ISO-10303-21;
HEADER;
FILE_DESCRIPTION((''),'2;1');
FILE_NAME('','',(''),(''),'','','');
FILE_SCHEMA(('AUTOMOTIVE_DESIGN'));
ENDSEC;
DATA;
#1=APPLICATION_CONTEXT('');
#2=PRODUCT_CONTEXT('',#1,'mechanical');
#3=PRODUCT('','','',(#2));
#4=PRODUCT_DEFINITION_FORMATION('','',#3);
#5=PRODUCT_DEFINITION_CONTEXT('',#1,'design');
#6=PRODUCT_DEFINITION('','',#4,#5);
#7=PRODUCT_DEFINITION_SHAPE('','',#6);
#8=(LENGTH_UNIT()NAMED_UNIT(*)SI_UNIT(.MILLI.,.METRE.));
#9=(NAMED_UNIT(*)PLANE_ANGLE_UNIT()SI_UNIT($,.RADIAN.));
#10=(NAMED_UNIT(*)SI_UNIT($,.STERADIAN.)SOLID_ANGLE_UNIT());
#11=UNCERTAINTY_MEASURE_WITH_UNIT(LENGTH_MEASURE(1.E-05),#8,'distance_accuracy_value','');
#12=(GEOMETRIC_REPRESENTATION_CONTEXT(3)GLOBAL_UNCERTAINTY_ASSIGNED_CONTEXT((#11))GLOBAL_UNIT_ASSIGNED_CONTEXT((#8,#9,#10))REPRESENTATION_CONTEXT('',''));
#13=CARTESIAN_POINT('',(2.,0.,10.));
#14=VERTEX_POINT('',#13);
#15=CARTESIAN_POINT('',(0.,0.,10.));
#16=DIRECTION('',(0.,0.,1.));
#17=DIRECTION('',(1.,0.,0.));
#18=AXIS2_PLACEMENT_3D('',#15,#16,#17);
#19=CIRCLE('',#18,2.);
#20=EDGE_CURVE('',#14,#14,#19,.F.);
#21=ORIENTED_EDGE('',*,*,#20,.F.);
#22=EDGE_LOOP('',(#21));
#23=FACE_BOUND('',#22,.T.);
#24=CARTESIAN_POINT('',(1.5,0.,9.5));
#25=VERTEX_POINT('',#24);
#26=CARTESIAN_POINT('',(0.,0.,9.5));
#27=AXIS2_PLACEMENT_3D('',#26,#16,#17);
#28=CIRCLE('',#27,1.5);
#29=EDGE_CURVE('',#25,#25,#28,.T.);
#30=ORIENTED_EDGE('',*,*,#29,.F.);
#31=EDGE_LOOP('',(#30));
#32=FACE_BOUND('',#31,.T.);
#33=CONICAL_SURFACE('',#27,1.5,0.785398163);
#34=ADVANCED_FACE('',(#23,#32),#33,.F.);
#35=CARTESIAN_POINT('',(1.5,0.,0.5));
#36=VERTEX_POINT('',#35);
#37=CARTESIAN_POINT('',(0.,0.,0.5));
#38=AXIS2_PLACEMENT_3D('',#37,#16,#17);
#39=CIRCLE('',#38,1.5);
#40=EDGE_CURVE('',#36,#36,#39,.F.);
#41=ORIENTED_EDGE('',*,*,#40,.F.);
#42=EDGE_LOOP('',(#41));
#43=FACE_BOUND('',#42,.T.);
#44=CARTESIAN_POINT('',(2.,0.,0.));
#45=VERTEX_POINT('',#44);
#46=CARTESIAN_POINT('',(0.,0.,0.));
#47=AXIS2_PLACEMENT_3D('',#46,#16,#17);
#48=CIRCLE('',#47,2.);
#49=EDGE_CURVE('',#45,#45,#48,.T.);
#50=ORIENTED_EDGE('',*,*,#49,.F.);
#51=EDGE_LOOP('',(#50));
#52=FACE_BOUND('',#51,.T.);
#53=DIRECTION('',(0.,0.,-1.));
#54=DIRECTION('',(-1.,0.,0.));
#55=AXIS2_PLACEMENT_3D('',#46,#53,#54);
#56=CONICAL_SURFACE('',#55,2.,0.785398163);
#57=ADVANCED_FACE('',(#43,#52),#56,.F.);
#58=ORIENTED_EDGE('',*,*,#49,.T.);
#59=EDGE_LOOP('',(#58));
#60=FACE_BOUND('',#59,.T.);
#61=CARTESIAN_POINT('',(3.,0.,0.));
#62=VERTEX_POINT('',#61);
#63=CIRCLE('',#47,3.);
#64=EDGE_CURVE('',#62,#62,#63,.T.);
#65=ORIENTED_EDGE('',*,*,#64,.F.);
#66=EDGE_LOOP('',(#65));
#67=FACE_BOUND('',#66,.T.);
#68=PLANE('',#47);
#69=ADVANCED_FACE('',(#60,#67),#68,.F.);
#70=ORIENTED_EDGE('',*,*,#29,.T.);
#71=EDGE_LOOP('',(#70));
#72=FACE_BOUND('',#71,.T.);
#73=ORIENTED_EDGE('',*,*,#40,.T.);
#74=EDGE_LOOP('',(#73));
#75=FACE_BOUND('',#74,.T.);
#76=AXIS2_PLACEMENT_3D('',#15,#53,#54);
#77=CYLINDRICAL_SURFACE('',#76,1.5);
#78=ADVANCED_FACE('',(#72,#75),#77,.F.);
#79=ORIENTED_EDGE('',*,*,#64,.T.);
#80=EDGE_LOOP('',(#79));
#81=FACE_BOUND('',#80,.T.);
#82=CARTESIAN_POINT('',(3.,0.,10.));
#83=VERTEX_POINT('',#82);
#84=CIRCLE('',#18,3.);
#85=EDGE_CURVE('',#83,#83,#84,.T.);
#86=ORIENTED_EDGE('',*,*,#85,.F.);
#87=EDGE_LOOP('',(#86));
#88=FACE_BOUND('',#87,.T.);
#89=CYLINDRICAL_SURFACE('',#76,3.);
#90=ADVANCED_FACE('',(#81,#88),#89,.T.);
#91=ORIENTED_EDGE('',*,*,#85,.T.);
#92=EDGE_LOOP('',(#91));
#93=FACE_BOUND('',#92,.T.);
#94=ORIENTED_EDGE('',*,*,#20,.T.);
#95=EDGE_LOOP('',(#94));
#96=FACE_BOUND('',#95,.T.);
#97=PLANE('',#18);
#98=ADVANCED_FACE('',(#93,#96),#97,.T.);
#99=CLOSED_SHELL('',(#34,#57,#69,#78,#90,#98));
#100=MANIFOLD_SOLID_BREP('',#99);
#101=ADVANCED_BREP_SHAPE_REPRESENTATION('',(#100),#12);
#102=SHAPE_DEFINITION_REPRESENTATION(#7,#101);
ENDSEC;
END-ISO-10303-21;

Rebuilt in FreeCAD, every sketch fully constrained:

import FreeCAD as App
import Part
import Sketcher

V = App.Vector


def edges_at(feature, points):
    """Names of the edges that pass closest to the given points."""
    edges = feature.Shape.Edges
    near = lambda p: min(range(len(edges)), key=lambda i: edges[i].distToShape(Part.Vertex(*p))[0])
    return sorted({f"Edge{near(p) + 1}" for p in points})

doc = App.newDocument("Part")
params = doc.addObject("Spreadsheet::Sheet", "Params")
for row, (alias, value) in enumerate([
    ("sketch1_diameter", "6 mm"),
    ("sketch1_diameter2", "3 mm"),
    ("pad1_length", "10 mm"),
    ("chamfer_size", "0.5 mm"),
    ("chamfer2_size", "0.5 mm"),
], start=1):
    params.set(f"A{row}", alias)
    params.set(f"B{row}", "=" + value)
    params.setAlias(f"B{row}", alias)

body = doc.addObject("PartDesign::Body", "Body")

sketch1 = body.newObject("Sketcher::SketchObject", "Sketch")
sketch1.AttachmentSupport = (doc.getObject("XY_Plane"), [""])
sketch1.MapMode = "FlatFace"
sketch1.addGeometry([
    Part.Circle(V(0, 0, 0), V(0, 0, 1), 3),
    Part.Circle(V(0, 0, 0), V(0, 0, 1), 1.5),
], False)
sketch1.addConstraint([
    Sketcher.Constraint("Coincident", 0, 3, -1, 1),
    Sketcher.Constraint("Coincident", 1, 3, -1, 1),
    Sketcher.Constraint("Diameter", 0, 6.0),
    Sketcher.Constraint("Diameter", 1, 3.0),
])
sketch1.setExpression("Constraints[2]", "Params.sketch1_diameter")
sketch1.setExpression("Constraints[3]", "Params.sketch1_diameter2")
pad1 = body.newObject("PartDesign::Pad", "Pad")
pad1.Profile = sketch1
pad1.setExpression("Length", "Params.pad1_length")
doc.recompute()

chamfer = body.newObject("PartDesign::Chamfer", "Chamfer")
chamfer.Base = (pad1, edges_at(pad1, [(-1.5, 0, 10)]))
chamfer.setExpression("Size", "Params.chamfer_size")
doc.recompute()

chamfer2 = body.newObject("PartDesign::Chamfer", "Chamfer001")
chamfer2.Base = (chamfer, edges_at(chamfer, [(-1.5, 0, 0)]))
chamfer2.setExpression("Size", "Params.chamfer2_size")

doc.recompute()
